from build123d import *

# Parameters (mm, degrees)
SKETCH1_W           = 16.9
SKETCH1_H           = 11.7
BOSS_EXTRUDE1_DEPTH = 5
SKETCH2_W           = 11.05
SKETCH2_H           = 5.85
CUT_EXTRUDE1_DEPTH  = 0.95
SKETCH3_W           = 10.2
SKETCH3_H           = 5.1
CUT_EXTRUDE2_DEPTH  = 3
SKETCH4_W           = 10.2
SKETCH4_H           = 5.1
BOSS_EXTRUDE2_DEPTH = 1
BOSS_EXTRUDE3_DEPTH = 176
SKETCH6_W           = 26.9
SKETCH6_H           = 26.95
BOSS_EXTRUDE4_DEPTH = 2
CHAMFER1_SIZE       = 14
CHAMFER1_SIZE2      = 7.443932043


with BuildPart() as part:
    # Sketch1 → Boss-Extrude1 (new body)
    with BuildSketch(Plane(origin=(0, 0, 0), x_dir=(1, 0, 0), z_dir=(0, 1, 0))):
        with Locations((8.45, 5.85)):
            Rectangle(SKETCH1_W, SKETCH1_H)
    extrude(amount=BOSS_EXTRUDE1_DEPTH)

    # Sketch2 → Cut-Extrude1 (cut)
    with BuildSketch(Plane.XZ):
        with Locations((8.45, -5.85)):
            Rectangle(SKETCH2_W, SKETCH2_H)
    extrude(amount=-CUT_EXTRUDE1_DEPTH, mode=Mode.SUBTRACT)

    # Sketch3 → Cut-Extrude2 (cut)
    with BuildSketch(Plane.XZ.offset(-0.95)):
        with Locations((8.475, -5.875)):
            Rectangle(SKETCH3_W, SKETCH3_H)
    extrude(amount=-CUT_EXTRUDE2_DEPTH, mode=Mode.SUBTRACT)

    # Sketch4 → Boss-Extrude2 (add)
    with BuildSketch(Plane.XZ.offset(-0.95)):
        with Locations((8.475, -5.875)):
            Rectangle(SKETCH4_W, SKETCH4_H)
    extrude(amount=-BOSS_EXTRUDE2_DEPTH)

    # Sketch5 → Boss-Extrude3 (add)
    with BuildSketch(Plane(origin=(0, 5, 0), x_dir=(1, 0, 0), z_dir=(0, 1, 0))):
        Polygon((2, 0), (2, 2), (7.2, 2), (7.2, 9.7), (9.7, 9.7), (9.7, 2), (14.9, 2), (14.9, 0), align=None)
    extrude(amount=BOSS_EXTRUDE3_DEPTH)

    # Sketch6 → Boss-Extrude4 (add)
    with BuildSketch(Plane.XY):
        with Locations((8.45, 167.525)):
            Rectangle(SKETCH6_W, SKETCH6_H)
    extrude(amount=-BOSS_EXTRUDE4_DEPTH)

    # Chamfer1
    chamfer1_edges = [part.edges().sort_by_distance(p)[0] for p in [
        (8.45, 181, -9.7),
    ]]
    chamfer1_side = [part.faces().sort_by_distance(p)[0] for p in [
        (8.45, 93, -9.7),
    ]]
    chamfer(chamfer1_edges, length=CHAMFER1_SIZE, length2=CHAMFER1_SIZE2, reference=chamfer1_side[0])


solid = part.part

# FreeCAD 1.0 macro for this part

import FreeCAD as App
import Part
import Sketcher

V = App.Vector
Q = App.Units.Quantity


def edges_at(feature, points):
    """Names of the edges that pass closest to the given points."""
    edges = feature.Shape.Edges
    near = lambda p: min(range(len(edges)), key=lambda i: edges[i].distToShape(Part.Vertex(*p))[0])
    return sorted({f"Edge{near(p) + 1}" for p in points})


def add_polygon(sketch, points):
    """Adds a closed chain of lines whose ends are joined by coincident constraints."""
    first, n = sketch.GeometryCount, len(points)
    for a, b in zip(points, points[1:] + points[:1]):
        sketch.addGeometry(Part.LineSegment(App.Vector(*a, 0), App.Vector(*b, 0)), False)
    for i in range(n):
        sketch.addConstraint(Sketcher.Constraint("Coincident", first + i, 2, first + (i + 1) % n, 1))

doc = App.newDocument("Part")
body = doc.addObject("PartDesign::Body", "Body")

# Sketch on XZ plane
sketch1 = doc.addObject("Sketcher::SketchObject", "Sketch")
body.addObject(sketch1)
sketch1.AttachmentSupport = (doc.XZ_Plane, [""])
sketch1.MapMode = "FlatFace"
add_polygon(sketch1, [(0, -12), (0, 0), (17, 0), (17, -12)])  # lines 0-3
sketch1.addConstraint([
    Sketcher.Constraint("Vertical", 0),
    Sketcher.Constraint("Horizontal", 1),
    Sketcher.Constraint("Vertical", 2),
    Sketcher.Constraint("Horizontal", 3),
    Sketcher.Constraint("Coincident", 0, 2, -1, 1),
    Sketcher.Constraint("DistanceX", 1, 1, 1, 2, Q("16.9 mm")),
    Sketcher.Constraint("DistanceY", 0, 1, 0, 2, Q("11.7 mm")),
])
pad1 = doc.addObject("PartDesign::Pad", "Pad")
body.addObject(pad1)
pad1.Profile = sketch1
pad1.Length = 5
pad1.Reversed = True

# Sketch on XZ plane
sketch2 = doc.addObject("Sketcher::SketchObject", "Sketch001")
body.addObject(sketch2)
sketch2.AttachmentSupport = (doc.XZ_Plane, [""])
sketch2.MapMode = "FlatFace"
add_polygon(sketch2, [(3, -3), (3, -9), (14, -9), (14, -3)])  # lines 0-3
sketch2.addConstraint([
    Sketcher.Constraint("Vertical", 0),
    Sketcher.Constraint("Horizontal", 1),
    Sketcher.Constraint("Vertical", 2),
    Sketcher.Constraint("Horizontal", 3),
    Sketcher.Constraint("DistanceX", 1, 1, 1, 2, Q("11.05 mm")),
    Sketcher.Constraint("DistanceY", 0, 2, 0, 1, Q("5.85 mm")),
    Sketcher.Constraint("DistanceX", -1, 1, 0, 2, Q("2.925 mm")),
    Sketcher.Constraint("DistanceY", 0, 2, -1, 1, Q("8.775 mm")),
])
pocket1 = doc.addObject("PartDesign::Pocket", "Pocket")
body.addObject(pocket1)
pocket1.Profile = sketch2
pocket1.Length = 0.95

# Sketch on XZ plane
sketch3 = doc.addObject("Sketcher::SketchObject", "Sketch002")
body.addObject(sketch3)
sketch3.AttachmentSupport = (doc.XZ_Plane, [""])
sketch3.MapMode = "FlatFace"
sketch3.AttachmentOffset = App.Placement(V(0, 0, -0.95), App.Rotation())
add_polygon(sketch3, [(3, -3), (3, -8), (14, -8), (14, -3)])  # lines 0-3
sketch3.addConstraint([
    Sketcher.Constraint("Vertical", 0),
    Sketcher.Constraint("Horizontal", 1),
    Sketcher.Constraint("Vertical", 2),
    Sketcher.Constraint("Horizontal", 3),
    Sketcher.Constraint("DistanceX", 1, 1, 1, 2, Q("10.2 mm")),
    Sketcher.Constraint("DistanceY", 0, 2, 0, 1, Q("5.1 mm")),
    Sketcher.Constraint("DistanceX", -1, 1, 0, 2, Q("3.375 mm")),
    Sketcher.Constraint("DistanceY", 0, 2, -1, 1, Q("8.425 mm")),
])
pocket2 = doc.addObject("PartDesign::Pocket", "Pocket001")
body.addObject(pocket2)
pocket2.Profile = sketch3
pocket2.Length = 3

# Sketch on XZ plane
sketch4 = doc.addObject("Sketcher::SketchObject", "Sketch003")
body.addObject(sketch4)
sketch4.AttachmentSupport = (doc.XZ_Plane, [""])
sketch4.MapMode = "FlatFace"
sketch4.AttachmentOffset = App.Placement(V(0, 0, -0.95), App.Rotation())
add_polygon(sketch4, [(3, -3), (3, -8), (14, -8), (14, -3)])  # lines 0-3
sketch4.addConstraint([
    Sketcher.Constraint("Vertical", 0),
    Sketcher.Constraint("Horizontal", 1),
    Sketcher.Constraint("Vertical", 2),
    Sketcher.Constraint("Horizontal", 3),
    Sketcher.Constraint("DistanceX", 1, 1, 1, 2, Q("10.2 mm")),
    Sketcher.Constraint("DistanceY", 0, 2, 0, 1, Q("5.1 mm")),
    Sketcher.Constraint("DistanceX", -1, 1, 0, 2, Q("3.375 mm")),
    Sketcher.Constraint("DistanceY", 0, 2, -1, 1, Q("8.425 mm")),
])
pad2 = doc.addObject("PartDesign::Pad", "Pad001")
body.addObject(pad2)
pad2.Profile = sketch4
pad2.Length = 1
pad2.Reversed = True

# Sketch on XZ plane
sketch5 = doc.addObject("Sketcher::SketchObject", "Sketch004")
body.addObject(sketch5)
sketch5.AttachmentSupport = (doc.XZ_Plane, [""])
sketch5.MapMode = "FlatFace"
sketch5.AttachmentOffset = App.Placement(V(0, 0, -5), App.Rotation())
add_polygon(sketch5, [(2, -2), (2, 0), (14.9, 0), (14.9, -2), (9.7, -2), (9.7, -9.7), (7.2, -9.7), (7.2, -2)])  # lines 0-7
sketch5.addConstraint([
    Sketcher.Constraint("Vertical", 0),
    Sketcher.Constraint("Horizontal", 1),
    Sketcher.Constraint("Vertical", 2),
    Sketcher.Constraint("Horizontal", 3),
    Sketcher.Constraint("Vertical", 4),
    Sketcher.Constraint("Horizontal", 5),
    Sketcher.Constraint("Vertical", 6),
    Sketcher.Constraint("Horizontal", 7),
    Sketcher.Constraint("PointOnObject", 0, 2, -1),
    Sketcher.Constraint("Horizontal", 3, 2, 6, 2),
    Sketcher.Constraint("Equal", 3, 7),
    Sketcher.Constraint("DistanceY", 0, 1, 0, 2, Q("2 mm")),
    Sketcher.Constraint("DistanceX", 1, 1, 1, 2, Q("12.9 mm")),
    Sketcher.Constraint("DistanceX", 3, 2, 3, 1, Q("5.2 mm")),
    Sketcher.Constraint("DistanceY", 4, 2, 4, 1, Q("7.7 mm")),
    Sketcher.Constraint("DistanceX", -1, 1, 0, 2, Q("2 mm")),
])
pad3 = doc.addObject("PartDesign::Pad", "Pad002")
body.addObject(pad3)
pad3.Profile = sketch5
pad3.Length = 176
pad3.Reversed = True

# Sketch on XY plane
sketch6 = doc.addObject("Sketcher::SketchObject", "Sketch005")
body.addObject(sketch6)
sketch6.AttachmentSupport = (doc.XY_Plane, [""])
sketch6.MapMode = "FlatFace"
add_polygon(sketch6, [(-5, 181), (-5, 154), (22, 154), (22, 181)])  # lines 0-3
sketch6.addConstraint([
    Sketcher.Constraint("Vertical", 0),
    Sketcher.Constraint("Horizontal", 1),
    Sketcher.Constraint("Vertical", 2),
    Sketcher.Constraint("Horizontal", 3),
    Sketcher.Constraint("DistanceX", 1, 1, 1, 2, Q("26.9 mm")),
    Sketcher.Constraint("DistanceX", 0, 2, -1, 1, Q("5 mm")),
    Sketcher.Constraint("DistanceY", -1, 1, 2, 2, Q("181 mm")),
    Sketcher.Constraint("DistanceY", 0, 2, 0, 1, Q("26.95 mm")),
])
pad4 = doc.addObject("PartDesign::Pad", "Pad003")
body.addObject(pad4)
pad4.Profile = sketch6
pad4.Length = 2
pad4.Reversed = True
doc.recompute()

chamfer = doc.addObject("PartDesign::Chamfer", "Chamfer")
body.addObject(chamfer)
chamfer.Base = (pad4, edges_at(pad4, [(8.45, 181, -9.7)]))
chamfer.ChamferType = "Two distances"
chamfer.Size = 14
chamfer.Size2 = 7.443932

doc.recompute()
